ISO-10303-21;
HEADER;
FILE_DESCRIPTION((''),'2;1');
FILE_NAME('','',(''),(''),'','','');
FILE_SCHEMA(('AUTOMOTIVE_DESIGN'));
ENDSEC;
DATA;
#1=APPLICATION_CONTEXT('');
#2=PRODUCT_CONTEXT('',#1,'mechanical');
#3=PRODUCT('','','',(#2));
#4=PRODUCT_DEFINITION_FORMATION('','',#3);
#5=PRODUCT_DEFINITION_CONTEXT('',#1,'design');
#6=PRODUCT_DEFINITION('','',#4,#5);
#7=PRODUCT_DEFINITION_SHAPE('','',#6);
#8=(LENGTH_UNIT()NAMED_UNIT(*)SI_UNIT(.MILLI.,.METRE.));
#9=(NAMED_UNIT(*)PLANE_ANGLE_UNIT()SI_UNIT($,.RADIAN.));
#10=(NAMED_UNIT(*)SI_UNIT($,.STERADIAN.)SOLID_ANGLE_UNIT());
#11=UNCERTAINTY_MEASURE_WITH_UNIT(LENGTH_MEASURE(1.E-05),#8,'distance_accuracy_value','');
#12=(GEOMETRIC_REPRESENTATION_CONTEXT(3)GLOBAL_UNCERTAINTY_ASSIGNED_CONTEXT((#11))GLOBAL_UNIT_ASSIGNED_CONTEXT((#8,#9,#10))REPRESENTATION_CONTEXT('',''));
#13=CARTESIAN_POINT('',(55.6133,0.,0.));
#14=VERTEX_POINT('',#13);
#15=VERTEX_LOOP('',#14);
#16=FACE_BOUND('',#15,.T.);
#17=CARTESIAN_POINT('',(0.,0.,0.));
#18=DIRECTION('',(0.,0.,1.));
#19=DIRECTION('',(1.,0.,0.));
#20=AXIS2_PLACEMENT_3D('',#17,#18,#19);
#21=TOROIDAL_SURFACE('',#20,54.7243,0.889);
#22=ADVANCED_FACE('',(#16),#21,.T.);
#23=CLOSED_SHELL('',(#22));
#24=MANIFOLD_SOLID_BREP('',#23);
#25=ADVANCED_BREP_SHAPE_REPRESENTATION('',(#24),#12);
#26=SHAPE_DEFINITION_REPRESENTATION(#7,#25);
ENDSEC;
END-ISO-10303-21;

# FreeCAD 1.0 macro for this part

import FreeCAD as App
import Part
import Sketcher
Q = App.Units.Quantity

doc = App.newDocument("Part")
body = doc.addObject("PartDesign::Body", "Body")

# Sketch on YZ plane
sketch1 = doc.addObject("Sketcher::SketchObject", "Sketch")
body.addObject(sketch1)
sketch1.AttachmentSupport = (doc.YZ_Plane, [""])
sketch1.MapMode = "FlatFace"
sketch1.addGeometry(Part.Circle(App.Vector(-54.7243, 0, 0), App.Vector(0, 0, 1), 0.889), False)
sketch1.addConstraint([
    Sketcher.Constraint("PointOnObject", 0, 3, -1),
    Sketcher.Constraint("Diameter", 0, Q("0.07 in")),
    Sketcher.Constraint("DistanceX", 0, 3, -1, 1, Q("2.1545 in")),
])
revolution = doc.addObject("PartDesign::Revolution", "Revolution")
body.addObject(revolution)
revolution.Profile = sketch1
revolution.ReferenceAxis = (sketch1, ["V_Axis"])
revolution.Angle = 360

doc.recompute()
